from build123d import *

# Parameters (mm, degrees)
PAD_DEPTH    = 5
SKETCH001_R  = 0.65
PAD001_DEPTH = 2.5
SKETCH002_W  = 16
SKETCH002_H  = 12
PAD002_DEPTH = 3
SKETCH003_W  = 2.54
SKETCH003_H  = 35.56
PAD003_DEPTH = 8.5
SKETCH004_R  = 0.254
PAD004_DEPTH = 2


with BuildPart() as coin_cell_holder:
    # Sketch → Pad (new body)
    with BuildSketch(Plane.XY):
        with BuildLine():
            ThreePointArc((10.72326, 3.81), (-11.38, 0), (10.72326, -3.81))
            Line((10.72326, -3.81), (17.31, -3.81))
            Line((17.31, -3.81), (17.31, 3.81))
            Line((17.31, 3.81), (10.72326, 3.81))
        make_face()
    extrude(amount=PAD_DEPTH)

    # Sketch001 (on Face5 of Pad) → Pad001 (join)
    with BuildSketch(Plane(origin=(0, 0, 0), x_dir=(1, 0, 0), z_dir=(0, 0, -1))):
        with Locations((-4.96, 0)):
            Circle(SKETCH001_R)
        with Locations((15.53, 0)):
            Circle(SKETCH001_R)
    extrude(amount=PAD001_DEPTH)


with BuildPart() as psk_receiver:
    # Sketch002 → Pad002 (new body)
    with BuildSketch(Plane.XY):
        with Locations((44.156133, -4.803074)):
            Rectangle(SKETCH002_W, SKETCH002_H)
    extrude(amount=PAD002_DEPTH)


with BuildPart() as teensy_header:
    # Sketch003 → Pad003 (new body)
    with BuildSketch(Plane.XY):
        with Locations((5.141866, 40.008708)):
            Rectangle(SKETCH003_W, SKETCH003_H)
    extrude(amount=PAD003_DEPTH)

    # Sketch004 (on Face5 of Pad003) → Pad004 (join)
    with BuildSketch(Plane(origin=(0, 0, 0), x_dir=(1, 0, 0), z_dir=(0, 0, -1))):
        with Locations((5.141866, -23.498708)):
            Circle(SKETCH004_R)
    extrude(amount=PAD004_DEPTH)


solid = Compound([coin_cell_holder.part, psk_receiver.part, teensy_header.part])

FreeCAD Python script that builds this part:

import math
import FreeCAD as App
import Part
import Sketcher
from FreeCAD import Vector
Q = App.Units.Quantity

doc = App.newDocument("Part")
params = doc.addObject("Spreadsheet::Sheet", "Params")
for row, (alias, value) in enumerate([
    ("sketch1_radius", "11.38 mm"),
    ("sketch1_height", "7.62 mm"),
    ("pad1_length", "5 mm"),
    ("sketch2_diameter", "1.3 mm"),
    ("pad2_length", "2.5 mm"),
    ("sketch3_width", "16 mm"),
    ("sketch3_height", "12 mm"),
    ("pad3_length", "3 mm"),
    ("sketch4_width", "2.54 mm"),
    ("sketch4_height", "35.56 mm"),
    ("pad4_length", "8.5 mm"),
    ("pad5_length", "2 mm"),
], start=1):
    params.set(f"A{row}", alias)
    params.set(f"B{row}", "=" + value)
    params.setAlias(f"B{row}", alias)

body = doc.addObject("PartDesign::Body", "Body")

sketch1 = doc.addObject("Sketcher::SketchObject", "Sketch")
body.addObject(sketch1)
sketch1.AttachmentSupport = (doc.XY_Plane, [""])
sketch1.MapMode = "FlatFace"
sketch1.addGeometry(Part.ArcOfCircle(Part.Circle(Vector(0, 0, 0), Vector(0, 0, 1), 11.38), math.radians(19.560248), math.radians(340.439752)), False)
sketch1.addGeometry(Part.LineSegment(Vector(10.72326, -3.81, 0), Vector(17.31, -3.81, 0)), False)
sketch1.addGeometry(Part.LineSegment(Vector(17.31, -3.81, 0), Vector(17.31, 3.81, 0)), False)
sketch1.addGeometry(Part.LineSegment(Vector(17.31, 3.81, 0), Vector(10.72326, 3.81, 0)), False)
sketch1.addConstraint(Sketcher.Constraint("Coincident", 0, 2, 1, 1))
sketch1.addConstraint(Sketcher.Constraint("Coincident", 1, 2, 2, 1))
sketch1.addConstraint(Sketcher.Constraint("Coincident", 2, 2, 3, 1))
sketch1.addConstraint(Sketcher.Constraint("Coincident", 3, 2, 0, 1))
sketch1.addConstraint(Sketcher.Constraint("Horizontal", 1))
sketch1.addConstraint(Sketcher.Constraint("Vertical", 2))
sketch1.addConstraint(Sketcher.Constraint("Horizontal", 3))
sketch1.addConstraint(Sketcher.Constraint("Coincident", 0, 3, -1, 1))
sketch1.addConstraint(Sketcher.Constraint("Vertical", 0, 2, 3, 2))
sketch1.addConstraint(Sketcher.Constraint("Radius", 0, Q("11.38 mm")))
sketch1.addConstraint(Sketcher.Constraint("DistanceY", 2, 1, 2, 2, Q("7.62 mm")))
sketch1.addConstraint(Sketcher.Constraint("DistanceX", -1, 1, 1, 2, Q("17.31 mm")))
sketch1.setExpression("Constraints[9]", "Params.sketch1_radius")
sketch1.setExpression("Constraints[10]", "Params.sketch1_height")
pad1 = doc.addObject("PartDesign::Pad", "Pad")
body.addObject(pad1)
pad1.Profile = sketch1
pad1.setExpression("Length", "Params.pad1_length")

sketch2 = doc.addObject("Sketcher::SketchObject", "Sketch001")
body.addObject(sketch2)
sketch2.AttachmentSupport = (doc.XY_Plane, [""])
sketch2.MapMode = "FlatFace"
sketch2.addGeometry(Part.Circle(Vector(-4.96, 0, 0), Vector(0, 0, 1), 0.65), False)
sketch2.addGeometry(Part.Circle(Vector(15.53, 0, 0), Vector(0, 0, 1), 0.65), False)
sketch2.addConstraint(Sketcher.Constraint("Equal", 0, 1))
sketch2.addConstraint(Sketcher.Constraint("PointOnObject", 0, 3, -1))
sketch2.addConstraint(Sketcher.Constraint("PointOnObject", 1, 3, -1))
sketch2.addConstraint(Sketcher.Constraint("Diameter", 0, Q("1.3 mm")))
sketch2.addConstraint(Sketcher.Constraint("DistanceX", 0, 3, -1, 1, Q("4.96 mm")))
sketch2.addConstraint(Sketcher.Constraint("DistanceX", -1, 1, 1, 3, Q("15.53 mm")))
sketch2.setExpression("Constraints[3]", "Params.sketch2_diameter")
pad2 = doc.addObject("PartDesign::Pad", "Pad001")
body.addObject(pad2)
pad2.Profile = sketch2
pad2.setExpression("Length", "Params.pad2_length")
pad2.Reversed = True
body2 = doc.addObject("PartDesign::Body", "Body001")

sketch3 = doc.addObject("Sketcher::SketchObject", "Sketch002")
body2.addObject(sketch3)
sketch3.AttachmentSupport = (doc.getObject("XY_Plane001"), [""])
sketch3.MapMode = "FlatFace"
sketch3.addGeometry(Part.LineSegment(Vector(36.156133, 1.196926, 0), Vector(36.156133, -10.803074, 0)), False)
sketch3.addGeometry(Part.LineSegment(Vector(36.156133, -10.803074, 0), Vector(52.156133, -10.803074, 0)), False)
sketch3.addGeometry(Part.LineSegment(Vector(52.156133, -10.803074, 0), Vector(52.156133, 1.196926, 0)), False)
sketch3.addGeometry(Part.LineSegment(Vector(52.156133, 1.196926, 0), Vector(36.156133, 1.196926, 0)), False)
sketch3.addConstraint(Sketcher.Constraint("Coincident", 0, 2, 1, 1))
sketch3.addConstraint(Sketcher.Constraint("Coincident", 1, 2, 2, 1))
sketch3.addConstraint(Sketcher.Constraint("Coincident", 2, 2, 3, 1))
sketch3.addConstraint(Sketcher.Constraint("Coincident", 3, 2, 0, 1))
sketch3.addConstraint(Sketcher.Constraint("Vertical", 0))
sketch3.addConstraint(Sketcher.Constraint("Horizontal", 1))
sketch3.addConstraint(Sketcher.Constraint("Vertical", 2))
sketch3.addConstraint(Sketcher.Constraint("Horizontal", 3))
sketch3.addConstraint(Sketcher.Constraint("DistanceX", 1, 1, 1, 2, Q("16 mm")))
sketch3.addConstraint(Sketcher.Constraint("DistanceY", 0, 2, 0, 1, Q("12 mm")))
sketch3.addConstraint(Sketcher.Constraint("DistanceX", -1, 1, 0, 2, Q("36.156133 mm")))
sketch3.addConstraint(Sketcher.Constraint("DistanceY", 0, 2, -1, 1, Q("10.803074 mm")))
sketch3.setExpression("Constraints[8]", "Params.sketch3_width")
sketch3.setExpression("Constraints[9]", "Params.sketch3_height")
pad3 = doc.addObject("PartDesign::Pad", "Pad002")
body2.addObject(pad3)
pad3.Profile = sketch3
pad3.setExpression("Length", "Params.pad3_length")
body3 = doc.addObject("PartDesign::Body", "Body002")

sketch4 = doc.addObject("Sketcher::SketchObject", "Sketch003")
body3.addObject(sketch4)
sketch4.AttachmentSupport = (doc.getObject("XY_Plane002"), [""])
sketch4.MapMode = "FlatFace"
sketch4.addGeometry(Part.LineSegment(Vector(3.871866, 57.788708, 0), Vector(3.871866, 22.228708, 0)), False)
sketch4.addGeometry(Part.LineSegment(Vector(3.871866, 22.228708, 0), Vector(6.411866, 22.228708, 0)), False)
sketch4.addGeometry(Part.LineSegment(Vector(6.411866, 22.228708, 0), Vector(6.411866, 57.788708, 0)), False)
sketch4.addGeometry(Part.LineSegment(Vector(6.411866, 57.788708, 0), Vector(3.871866, 57.788708, 0)), False)
sketch4.addConstraint(Sketcher.Constraint("Coincident", 0, 2, 1, 1))
sketch4.addConstraint(Sketcher.Constraint("Coincident", 1, 2, 2, 1))
sketch4.addConstraint(Sketcher.Constraint("Coincident", 2, 2, 3, 1))
sketch4.addConstraint(Sketcher.Constraint("Coincident", 3, 2, 0, 1))
sketch4.addConstraint(Sketcher.Constraint("Vertical", 0))
sketch4.addConstraint(Sketcher.Constraint("Horizontal", 1))
sketch4.addConstraint(Sketcher.Constraint("Vertical", 2))
sketch4.addConstraint(Sketcher.Constraint("Horizontal", 3))
sketch4.addConstraint(Sketcher.Constraint("DistanceX", 1, 1, 1, 2, Q("2.54 mm")))
sketch4.addConstraint(Sketcher.Constraint("DistanceY", 0, 2, 0, 1, Q("35.56 mm")))
sketch4.addConstraint(Sketcher.Constraint("DistanceY", -1, 1, 0, 2, Q("22.228708 mm")))
sketch4.addConstraint(Sketcher.Constraint("DistanceX", -1, 1, 0, 2, Q("3.871866 mm")))
sketch4.setExpression("Constraints[8]", "Params.sketch4_width")
sketch4.setExpression("Constraints[9]", "Params.sketch4_height")
pad4 = doc.addObject("PartDesign::Pad", "Pad003")
body3.addObject(pad4)
pad4.Profile = sketch4
pad4.setExpression("Length", "Params.pad4_length")

sketch5 = doc.addObject("Sketcher::SketchObject", "Sketch004")
body3.addObject(sketch5)
sketch5.AttachmentSupport = (doc.getObject("XY_Plane002"), [""])
sketch5.MapMode = "FlatFace"
sketch5.addGeometry(Part.Circle(Vector(5.141866, 23.498708, 0), Vector(0, 0, 1), 0.254), False)
sketch5.addConstraint(Sketcher.Constraint("Diameter", 0, Q("0.508 mm")))
sketch5.addConstraint(Sketcher.Constraint("DistanceY", -1, 1, 0, 3, Q("23.498708 mm")))
sketch5.addConstraint(Sketcher.Constraint("DistanceX", -1, 1, 0, 3, Q("5.141866 mm")))
pad5 = doc.addObject("PartDesign::Pad", "Pad004")
body3.addObject(pad5)
pad5.Profile = sketch5
pad5.setExpression("Length", "Params.pad5_length")
pad5.Reversed = True

doc.recompute()
